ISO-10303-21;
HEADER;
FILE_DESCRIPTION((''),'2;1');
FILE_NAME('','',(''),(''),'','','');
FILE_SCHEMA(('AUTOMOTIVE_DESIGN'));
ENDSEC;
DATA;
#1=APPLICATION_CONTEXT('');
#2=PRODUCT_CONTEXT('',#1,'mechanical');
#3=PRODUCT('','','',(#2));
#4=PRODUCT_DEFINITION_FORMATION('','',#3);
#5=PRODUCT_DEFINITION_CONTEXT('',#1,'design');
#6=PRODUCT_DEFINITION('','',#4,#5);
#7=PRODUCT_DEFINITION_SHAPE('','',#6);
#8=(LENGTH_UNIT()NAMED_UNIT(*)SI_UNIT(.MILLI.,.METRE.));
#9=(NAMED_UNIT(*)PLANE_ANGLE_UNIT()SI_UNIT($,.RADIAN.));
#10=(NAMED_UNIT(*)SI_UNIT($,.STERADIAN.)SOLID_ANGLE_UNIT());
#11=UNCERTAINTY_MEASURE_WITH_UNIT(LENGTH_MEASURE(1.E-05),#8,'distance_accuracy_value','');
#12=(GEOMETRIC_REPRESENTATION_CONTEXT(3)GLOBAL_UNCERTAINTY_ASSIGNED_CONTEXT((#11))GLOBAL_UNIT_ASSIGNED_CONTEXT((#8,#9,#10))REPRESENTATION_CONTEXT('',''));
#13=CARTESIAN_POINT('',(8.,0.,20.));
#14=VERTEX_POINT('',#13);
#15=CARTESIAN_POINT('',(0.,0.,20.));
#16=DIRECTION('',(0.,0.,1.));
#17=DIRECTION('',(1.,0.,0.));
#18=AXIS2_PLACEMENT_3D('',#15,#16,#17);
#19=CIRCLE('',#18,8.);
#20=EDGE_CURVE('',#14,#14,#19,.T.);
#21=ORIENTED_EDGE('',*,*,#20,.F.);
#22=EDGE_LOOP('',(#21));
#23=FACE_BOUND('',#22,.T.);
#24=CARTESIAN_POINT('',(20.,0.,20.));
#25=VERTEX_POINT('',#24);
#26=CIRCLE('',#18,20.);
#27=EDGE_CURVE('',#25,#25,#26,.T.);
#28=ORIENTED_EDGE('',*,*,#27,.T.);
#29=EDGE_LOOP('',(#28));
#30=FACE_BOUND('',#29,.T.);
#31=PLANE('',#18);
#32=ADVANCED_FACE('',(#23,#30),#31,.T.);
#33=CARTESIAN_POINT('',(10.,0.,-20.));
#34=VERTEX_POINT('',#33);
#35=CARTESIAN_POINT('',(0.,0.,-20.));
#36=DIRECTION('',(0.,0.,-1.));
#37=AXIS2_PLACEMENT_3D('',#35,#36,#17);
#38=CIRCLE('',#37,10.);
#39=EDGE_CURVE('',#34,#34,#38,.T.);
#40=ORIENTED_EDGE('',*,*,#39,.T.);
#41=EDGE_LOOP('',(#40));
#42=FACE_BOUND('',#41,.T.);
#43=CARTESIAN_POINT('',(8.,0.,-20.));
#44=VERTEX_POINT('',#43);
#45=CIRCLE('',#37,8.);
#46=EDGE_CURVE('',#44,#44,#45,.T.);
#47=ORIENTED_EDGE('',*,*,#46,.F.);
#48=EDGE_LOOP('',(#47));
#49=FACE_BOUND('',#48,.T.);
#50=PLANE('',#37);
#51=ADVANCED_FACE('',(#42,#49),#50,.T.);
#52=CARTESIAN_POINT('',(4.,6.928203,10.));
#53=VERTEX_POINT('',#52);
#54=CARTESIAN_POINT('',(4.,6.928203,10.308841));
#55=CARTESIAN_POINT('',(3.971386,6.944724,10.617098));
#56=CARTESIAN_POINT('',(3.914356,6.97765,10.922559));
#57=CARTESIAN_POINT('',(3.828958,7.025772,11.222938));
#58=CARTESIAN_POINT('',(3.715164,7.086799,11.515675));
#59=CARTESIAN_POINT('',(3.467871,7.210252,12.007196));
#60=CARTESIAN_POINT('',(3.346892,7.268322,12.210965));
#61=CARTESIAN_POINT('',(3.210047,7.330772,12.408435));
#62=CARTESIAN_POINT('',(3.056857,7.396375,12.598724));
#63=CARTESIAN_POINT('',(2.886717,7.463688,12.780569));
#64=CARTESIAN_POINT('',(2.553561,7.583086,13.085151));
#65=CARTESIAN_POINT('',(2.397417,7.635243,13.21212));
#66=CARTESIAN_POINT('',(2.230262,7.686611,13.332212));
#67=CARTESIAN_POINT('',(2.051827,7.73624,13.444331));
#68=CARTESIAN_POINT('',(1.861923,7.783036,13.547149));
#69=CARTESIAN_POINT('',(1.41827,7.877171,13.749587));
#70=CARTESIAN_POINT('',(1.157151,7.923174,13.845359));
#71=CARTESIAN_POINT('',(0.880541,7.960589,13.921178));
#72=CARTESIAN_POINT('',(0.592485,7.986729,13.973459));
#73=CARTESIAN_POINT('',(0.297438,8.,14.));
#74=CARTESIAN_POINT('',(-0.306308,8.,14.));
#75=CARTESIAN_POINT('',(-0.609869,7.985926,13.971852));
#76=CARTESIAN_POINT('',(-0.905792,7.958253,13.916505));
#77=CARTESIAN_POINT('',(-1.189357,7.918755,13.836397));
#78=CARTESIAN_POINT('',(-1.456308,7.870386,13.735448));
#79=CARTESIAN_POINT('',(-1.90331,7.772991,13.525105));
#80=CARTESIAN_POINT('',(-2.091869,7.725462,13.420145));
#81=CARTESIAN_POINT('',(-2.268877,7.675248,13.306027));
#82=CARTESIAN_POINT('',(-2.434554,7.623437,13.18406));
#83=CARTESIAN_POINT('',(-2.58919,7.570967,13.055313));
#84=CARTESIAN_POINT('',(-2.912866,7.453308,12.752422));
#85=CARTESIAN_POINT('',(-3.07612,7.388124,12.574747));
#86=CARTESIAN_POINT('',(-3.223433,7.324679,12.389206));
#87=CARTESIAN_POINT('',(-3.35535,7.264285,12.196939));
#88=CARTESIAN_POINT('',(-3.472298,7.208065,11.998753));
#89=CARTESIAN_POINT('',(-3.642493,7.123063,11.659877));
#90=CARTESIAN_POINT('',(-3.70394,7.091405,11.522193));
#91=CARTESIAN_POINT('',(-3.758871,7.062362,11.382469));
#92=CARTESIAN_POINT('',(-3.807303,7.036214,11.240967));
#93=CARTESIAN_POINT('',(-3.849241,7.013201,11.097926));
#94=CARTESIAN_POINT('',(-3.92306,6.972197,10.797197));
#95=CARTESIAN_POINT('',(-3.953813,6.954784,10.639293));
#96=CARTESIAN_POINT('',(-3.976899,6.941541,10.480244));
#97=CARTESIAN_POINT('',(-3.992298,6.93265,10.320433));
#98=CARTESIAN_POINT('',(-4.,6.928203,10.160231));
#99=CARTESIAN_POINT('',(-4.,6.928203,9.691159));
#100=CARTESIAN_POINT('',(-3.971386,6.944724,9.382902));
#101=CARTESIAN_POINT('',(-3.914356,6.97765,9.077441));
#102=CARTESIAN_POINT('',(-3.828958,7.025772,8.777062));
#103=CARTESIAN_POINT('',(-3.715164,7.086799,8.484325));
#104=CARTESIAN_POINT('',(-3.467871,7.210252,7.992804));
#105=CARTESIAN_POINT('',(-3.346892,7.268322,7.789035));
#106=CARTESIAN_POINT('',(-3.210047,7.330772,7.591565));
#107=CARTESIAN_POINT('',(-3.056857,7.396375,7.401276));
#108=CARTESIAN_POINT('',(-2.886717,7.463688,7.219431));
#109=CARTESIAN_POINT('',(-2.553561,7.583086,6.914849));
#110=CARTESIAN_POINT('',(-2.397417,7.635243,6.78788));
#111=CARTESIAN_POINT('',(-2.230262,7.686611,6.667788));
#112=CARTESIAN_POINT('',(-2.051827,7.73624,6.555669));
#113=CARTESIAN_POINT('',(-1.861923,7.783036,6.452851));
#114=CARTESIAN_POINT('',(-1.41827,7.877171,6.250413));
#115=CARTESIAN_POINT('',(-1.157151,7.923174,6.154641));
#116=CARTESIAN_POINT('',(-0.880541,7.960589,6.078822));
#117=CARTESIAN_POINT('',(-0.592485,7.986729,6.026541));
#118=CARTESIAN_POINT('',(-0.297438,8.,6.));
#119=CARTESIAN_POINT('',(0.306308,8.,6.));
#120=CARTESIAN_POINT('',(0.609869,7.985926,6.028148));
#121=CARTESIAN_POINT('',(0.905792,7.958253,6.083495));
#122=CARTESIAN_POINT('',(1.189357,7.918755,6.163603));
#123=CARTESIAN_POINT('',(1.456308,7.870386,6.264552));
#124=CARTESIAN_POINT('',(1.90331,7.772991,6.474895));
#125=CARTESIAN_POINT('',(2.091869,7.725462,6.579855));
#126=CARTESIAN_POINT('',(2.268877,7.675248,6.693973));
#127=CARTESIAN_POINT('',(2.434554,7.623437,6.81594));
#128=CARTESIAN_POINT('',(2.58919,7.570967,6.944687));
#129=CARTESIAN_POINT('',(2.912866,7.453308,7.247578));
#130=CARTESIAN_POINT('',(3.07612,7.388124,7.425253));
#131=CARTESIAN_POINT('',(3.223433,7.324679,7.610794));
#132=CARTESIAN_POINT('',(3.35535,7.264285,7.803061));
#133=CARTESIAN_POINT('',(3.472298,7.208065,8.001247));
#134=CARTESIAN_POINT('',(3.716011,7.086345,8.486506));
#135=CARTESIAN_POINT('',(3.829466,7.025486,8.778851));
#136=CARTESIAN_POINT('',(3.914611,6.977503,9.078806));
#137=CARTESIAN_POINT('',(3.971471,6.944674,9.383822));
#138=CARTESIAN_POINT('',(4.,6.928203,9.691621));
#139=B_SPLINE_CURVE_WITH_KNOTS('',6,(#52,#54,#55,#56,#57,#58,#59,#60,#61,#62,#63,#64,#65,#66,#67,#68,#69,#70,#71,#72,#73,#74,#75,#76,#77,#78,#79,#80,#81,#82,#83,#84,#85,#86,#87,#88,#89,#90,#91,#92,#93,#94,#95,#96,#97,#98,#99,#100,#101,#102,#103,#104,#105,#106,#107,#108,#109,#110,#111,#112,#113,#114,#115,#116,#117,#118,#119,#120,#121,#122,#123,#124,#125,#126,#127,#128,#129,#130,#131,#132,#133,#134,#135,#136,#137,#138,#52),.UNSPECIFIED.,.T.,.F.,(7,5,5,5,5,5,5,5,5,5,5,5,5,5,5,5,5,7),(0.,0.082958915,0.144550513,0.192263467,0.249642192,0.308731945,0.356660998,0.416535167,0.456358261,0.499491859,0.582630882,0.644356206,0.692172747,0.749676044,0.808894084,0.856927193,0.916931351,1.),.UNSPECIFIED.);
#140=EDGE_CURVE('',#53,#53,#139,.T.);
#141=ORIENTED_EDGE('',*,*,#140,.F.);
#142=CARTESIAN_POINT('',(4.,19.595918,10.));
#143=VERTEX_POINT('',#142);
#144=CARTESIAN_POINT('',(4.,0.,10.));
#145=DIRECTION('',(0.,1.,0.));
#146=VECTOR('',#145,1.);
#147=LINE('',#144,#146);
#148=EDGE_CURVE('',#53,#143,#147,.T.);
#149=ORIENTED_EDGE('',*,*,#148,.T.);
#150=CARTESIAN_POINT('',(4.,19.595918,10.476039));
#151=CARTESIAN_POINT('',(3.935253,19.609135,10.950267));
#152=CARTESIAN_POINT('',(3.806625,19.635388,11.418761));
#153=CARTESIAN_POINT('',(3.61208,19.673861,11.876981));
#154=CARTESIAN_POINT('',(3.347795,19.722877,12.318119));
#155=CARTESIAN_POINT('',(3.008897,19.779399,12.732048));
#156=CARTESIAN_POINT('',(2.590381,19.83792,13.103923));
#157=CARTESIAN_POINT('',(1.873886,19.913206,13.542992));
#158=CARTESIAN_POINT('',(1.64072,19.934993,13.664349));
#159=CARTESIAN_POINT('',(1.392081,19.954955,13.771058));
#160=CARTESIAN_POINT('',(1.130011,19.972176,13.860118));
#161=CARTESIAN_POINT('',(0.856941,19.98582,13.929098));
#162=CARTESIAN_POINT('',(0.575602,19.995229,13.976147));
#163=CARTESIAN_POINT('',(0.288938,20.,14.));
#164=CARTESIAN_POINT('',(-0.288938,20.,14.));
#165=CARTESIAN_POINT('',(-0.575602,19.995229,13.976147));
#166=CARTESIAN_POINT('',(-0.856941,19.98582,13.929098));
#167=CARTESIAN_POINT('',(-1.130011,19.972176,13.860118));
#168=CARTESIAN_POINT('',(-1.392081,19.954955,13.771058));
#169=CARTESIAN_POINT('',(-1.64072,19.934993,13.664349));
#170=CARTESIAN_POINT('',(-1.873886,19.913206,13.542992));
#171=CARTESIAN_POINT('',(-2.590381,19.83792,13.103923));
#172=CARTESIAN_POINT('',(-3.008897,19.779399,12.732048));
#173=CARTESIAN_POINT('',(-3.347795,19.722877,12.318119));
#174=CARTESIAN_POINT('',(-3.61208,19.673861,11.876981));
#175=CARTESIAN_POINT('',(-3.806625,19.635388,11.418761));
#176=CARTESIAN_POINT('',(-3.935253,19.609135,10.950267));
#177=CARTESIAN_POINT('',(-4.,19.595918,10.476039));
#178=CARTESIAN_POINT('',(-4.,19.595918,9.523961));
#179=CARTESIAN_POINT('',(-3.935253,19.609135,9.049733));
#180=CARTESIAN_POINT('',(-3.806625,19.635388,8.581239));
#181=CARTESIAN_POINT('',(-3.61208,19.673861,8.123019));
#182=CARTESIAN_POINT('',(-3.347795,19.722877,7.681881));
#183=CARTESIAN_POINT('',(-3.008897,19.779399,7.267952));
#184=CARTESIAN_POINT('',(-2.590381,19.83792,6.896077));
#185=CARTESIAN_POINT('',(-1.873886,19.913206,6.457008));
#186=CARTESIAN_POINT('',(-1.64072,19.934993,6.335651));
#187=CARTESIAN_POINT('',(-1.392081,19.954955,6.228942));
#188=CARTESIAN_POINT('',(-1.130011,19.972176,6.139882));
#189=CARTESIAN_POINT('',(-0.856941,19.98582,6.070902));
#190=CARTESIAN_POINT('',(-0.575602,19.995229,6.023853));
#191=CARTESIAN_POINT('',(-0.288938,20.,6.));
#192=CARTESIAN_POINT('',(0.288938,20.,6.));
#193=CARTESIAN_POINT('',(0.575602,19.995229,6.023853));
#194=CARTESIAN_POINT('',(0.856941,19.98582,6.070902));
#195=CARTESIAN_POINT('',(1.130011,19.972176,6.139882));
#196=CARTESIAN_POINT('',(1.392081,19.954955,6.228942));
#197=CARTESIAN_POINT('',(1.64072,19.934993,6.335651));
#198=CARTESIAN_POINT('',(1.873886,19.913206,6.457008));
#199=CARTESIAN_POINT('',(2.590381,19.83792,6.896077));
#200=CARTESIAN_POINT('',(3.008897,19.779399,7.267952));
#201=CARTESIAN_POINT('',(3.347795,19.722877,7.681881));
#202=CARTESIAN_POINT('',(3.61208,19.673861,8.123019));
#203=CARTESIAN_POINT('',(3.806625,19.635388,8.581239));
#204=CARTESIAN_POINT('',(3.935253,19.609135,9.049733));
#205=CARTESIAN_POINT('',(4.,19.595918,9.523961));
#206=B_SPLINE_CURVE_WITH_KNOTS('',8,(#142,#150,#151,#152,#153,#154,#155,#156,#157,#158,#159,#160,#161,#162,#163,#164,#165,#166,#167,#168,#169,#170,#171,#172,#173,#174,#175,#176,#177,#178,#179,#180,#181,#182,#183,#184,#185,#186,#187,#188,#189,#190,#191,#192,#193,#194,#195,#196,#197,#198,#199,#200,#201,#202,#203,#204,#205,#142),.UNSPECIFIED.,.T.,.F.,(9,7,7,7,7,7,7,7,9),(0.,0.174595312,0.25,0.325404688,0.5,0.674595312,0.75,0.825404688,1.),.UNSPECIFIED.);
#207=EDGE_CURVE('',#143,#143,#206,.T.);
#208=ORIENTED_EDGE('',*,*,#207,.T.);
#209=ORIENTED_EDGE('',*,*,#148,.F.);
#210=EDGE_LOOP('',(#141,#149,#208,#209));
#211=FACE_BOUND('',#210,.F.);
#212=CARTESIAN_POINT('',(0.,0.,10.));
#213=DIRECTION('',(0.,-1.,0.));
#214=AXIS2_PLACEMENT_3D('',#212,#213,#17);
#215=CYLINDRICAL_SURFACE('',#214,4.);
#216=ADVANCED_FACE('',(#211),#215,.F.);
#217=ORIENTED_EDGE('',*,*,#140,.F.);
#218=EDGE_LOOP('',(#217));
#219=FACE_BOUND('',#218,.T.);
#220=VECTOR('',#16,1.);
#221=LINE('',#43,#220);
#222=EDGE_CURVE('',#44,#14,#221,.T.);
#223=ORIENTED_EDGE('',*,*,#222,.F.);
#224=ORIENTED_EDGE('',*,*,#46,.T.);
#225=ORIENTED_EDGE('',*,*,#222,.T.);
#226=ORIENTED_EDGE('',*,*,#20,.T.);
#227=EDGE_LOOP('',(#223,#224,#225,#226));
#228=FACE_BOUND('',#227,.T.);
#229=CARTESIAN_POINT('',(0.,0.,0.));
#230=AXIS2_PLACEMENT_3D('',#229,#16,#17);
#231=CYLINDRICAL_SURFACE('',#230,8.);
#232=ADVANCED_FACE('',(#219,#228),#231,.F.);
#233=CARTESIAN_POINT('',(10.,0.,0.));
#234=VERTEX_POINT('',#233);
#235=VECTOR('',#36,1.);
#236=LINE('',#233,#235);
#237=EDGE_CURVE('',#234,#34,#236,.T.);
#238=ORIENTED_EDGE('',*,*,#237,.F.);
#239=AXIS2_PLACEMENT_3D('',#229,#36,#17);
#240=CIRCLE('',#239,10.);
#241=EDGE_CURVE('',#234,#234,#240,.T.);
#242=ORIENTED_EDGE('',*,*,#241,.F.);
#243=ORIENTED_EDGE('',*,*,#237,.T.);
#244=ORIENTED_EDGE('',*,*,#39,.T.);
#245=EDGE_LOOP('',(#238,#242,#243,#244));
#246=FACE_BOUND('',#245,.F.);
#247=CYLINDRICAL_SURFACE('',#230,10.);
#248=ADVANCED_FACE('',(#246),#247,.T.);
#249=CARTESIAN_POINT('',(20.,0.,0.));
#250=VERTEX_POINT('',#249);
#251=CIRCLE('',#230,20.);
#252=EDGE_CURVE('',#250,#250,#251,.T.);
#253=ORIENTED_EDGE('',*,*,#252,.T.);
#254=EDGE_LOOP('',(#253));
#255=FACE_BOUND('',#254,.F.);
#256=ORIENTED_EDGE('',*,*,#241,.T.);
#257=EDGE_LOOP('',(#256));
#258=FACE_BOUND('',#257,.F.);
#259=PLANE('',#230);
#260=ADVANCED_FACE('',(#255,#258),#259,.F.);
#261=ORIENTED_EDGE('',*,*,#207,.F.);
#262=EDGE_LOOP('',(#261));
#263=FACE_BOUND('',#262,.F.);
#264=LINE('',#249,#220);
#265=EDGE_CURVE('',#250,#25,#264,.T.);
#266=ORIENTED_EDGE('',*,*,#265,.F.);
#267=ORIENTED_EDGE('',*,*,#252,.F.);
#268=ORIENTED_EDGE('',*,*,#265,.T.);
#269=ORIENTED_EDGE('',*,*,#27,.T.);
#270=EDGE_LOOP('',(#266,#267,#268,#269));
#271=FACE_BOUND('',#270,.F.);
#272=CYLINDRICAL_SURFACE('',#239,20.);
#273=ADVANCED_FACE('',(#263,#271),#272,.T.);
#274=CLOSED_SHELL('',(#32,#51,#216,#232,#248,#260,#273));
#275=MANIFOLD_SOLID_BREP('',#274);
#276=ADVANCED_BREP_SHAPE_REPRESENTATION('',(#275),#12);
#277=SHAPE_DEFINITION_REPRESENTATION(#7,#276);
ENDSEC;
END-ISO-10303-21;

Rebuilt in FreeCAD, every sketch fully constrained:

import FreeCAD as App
import Part
import Sketcher

doc = App.newDocument("Part")
body = doc.addObject("PartDesign::Body", "Body")

# Sketch on XY plane
sketch1 = body.newObject("Sketcher::SketchObject", "Sketch")
sketch1.AttachmentSupport = (doc.getObject("XY_Plane"), [""])
sketch1.MapMode = "FlatFace"
sketch1.addGeometry([
    Part.Circle(App.Vector(0, 0, 0), App.Vector(0, 0, 1), 20),
    Part.Circle(App.Vector(0, 0, 0), App.Vector(0, 0, 1), 8),
], False)
sketch1.addConstraint([
    Sketcher.Constraint("Coincident", 0, 3, -1, 1),
    Sketcher.Constraint("Coincident", 1, 3, -1, 1),
    Sketcher.Constraint("Diameter", 0, 40.0),
    Sketcher.Constraint("Diameter", 1, 16.0),
])
pad1 = body.newObject("PartDesign::Pad", "Pad")
pad1.Profile = sketch1
pad1.Length = 20

# Sketch on XY plane
sketch2 = body.newObject("Sketcher::SketchObject", "Sketch001")
sketch2.AttachmentSupport = (doc.getObject("XY_Plane"), [""])
sketch2.MapMode = "FlatFace"
sketch2.addGeometry([
    Part.Circle(App.Vector(0, 0, 0), App.Vector(0, 0, 1), 10),
    Part.Circle(App.Vector(0, 0, 0), App.Vector(0, 0, 1), 8),
], False)
sketch2.addConstraint([
    Sketcher.Constraint("Coincident", 0, 3, -1, 1),
    Sketcher.Constraint("Coincident", 1, 3, -1, 1),
    Sketcher.Constraint("Diameter", 0, 20.0),
    Sketcher.Constraint("Diameter", 1, 16.0),
])
pad2 = body.newObject("PartDesign::Pad", "Pad001")
pad2.Profile = sketch2
pad2.Length = 20
pad2.Reversed = True

# Sketch on XZ plane
sketch3 = body.newObject("Sketcher::SketchObject", "Sketch002")
sketch3.AttachmentSupport = (doc.getObject("XZ_Plane"), [""])
sketch3.MapMode = "FlatFace"
sketch3.addGeometry(Part.Circle(App.Vector(0, 10, 0), App.Vector(0, 0, 1), 4), False)
sketch3.addConstraint([
    Sketcher.Constraint("PointOnObject", 0, 3, -2),
    Sketcher.Constraint("Diameter", 0, 8.0),
    Sketcher.Constraint("DistanceY", -1, 1, 0, 3, 10.0),
])
pocket1 = body.newObject("PartDesign::Pocket", "Pocket")
pocket1.Profile = sketch3
pocket1.Length = 25

doc.recompute()
